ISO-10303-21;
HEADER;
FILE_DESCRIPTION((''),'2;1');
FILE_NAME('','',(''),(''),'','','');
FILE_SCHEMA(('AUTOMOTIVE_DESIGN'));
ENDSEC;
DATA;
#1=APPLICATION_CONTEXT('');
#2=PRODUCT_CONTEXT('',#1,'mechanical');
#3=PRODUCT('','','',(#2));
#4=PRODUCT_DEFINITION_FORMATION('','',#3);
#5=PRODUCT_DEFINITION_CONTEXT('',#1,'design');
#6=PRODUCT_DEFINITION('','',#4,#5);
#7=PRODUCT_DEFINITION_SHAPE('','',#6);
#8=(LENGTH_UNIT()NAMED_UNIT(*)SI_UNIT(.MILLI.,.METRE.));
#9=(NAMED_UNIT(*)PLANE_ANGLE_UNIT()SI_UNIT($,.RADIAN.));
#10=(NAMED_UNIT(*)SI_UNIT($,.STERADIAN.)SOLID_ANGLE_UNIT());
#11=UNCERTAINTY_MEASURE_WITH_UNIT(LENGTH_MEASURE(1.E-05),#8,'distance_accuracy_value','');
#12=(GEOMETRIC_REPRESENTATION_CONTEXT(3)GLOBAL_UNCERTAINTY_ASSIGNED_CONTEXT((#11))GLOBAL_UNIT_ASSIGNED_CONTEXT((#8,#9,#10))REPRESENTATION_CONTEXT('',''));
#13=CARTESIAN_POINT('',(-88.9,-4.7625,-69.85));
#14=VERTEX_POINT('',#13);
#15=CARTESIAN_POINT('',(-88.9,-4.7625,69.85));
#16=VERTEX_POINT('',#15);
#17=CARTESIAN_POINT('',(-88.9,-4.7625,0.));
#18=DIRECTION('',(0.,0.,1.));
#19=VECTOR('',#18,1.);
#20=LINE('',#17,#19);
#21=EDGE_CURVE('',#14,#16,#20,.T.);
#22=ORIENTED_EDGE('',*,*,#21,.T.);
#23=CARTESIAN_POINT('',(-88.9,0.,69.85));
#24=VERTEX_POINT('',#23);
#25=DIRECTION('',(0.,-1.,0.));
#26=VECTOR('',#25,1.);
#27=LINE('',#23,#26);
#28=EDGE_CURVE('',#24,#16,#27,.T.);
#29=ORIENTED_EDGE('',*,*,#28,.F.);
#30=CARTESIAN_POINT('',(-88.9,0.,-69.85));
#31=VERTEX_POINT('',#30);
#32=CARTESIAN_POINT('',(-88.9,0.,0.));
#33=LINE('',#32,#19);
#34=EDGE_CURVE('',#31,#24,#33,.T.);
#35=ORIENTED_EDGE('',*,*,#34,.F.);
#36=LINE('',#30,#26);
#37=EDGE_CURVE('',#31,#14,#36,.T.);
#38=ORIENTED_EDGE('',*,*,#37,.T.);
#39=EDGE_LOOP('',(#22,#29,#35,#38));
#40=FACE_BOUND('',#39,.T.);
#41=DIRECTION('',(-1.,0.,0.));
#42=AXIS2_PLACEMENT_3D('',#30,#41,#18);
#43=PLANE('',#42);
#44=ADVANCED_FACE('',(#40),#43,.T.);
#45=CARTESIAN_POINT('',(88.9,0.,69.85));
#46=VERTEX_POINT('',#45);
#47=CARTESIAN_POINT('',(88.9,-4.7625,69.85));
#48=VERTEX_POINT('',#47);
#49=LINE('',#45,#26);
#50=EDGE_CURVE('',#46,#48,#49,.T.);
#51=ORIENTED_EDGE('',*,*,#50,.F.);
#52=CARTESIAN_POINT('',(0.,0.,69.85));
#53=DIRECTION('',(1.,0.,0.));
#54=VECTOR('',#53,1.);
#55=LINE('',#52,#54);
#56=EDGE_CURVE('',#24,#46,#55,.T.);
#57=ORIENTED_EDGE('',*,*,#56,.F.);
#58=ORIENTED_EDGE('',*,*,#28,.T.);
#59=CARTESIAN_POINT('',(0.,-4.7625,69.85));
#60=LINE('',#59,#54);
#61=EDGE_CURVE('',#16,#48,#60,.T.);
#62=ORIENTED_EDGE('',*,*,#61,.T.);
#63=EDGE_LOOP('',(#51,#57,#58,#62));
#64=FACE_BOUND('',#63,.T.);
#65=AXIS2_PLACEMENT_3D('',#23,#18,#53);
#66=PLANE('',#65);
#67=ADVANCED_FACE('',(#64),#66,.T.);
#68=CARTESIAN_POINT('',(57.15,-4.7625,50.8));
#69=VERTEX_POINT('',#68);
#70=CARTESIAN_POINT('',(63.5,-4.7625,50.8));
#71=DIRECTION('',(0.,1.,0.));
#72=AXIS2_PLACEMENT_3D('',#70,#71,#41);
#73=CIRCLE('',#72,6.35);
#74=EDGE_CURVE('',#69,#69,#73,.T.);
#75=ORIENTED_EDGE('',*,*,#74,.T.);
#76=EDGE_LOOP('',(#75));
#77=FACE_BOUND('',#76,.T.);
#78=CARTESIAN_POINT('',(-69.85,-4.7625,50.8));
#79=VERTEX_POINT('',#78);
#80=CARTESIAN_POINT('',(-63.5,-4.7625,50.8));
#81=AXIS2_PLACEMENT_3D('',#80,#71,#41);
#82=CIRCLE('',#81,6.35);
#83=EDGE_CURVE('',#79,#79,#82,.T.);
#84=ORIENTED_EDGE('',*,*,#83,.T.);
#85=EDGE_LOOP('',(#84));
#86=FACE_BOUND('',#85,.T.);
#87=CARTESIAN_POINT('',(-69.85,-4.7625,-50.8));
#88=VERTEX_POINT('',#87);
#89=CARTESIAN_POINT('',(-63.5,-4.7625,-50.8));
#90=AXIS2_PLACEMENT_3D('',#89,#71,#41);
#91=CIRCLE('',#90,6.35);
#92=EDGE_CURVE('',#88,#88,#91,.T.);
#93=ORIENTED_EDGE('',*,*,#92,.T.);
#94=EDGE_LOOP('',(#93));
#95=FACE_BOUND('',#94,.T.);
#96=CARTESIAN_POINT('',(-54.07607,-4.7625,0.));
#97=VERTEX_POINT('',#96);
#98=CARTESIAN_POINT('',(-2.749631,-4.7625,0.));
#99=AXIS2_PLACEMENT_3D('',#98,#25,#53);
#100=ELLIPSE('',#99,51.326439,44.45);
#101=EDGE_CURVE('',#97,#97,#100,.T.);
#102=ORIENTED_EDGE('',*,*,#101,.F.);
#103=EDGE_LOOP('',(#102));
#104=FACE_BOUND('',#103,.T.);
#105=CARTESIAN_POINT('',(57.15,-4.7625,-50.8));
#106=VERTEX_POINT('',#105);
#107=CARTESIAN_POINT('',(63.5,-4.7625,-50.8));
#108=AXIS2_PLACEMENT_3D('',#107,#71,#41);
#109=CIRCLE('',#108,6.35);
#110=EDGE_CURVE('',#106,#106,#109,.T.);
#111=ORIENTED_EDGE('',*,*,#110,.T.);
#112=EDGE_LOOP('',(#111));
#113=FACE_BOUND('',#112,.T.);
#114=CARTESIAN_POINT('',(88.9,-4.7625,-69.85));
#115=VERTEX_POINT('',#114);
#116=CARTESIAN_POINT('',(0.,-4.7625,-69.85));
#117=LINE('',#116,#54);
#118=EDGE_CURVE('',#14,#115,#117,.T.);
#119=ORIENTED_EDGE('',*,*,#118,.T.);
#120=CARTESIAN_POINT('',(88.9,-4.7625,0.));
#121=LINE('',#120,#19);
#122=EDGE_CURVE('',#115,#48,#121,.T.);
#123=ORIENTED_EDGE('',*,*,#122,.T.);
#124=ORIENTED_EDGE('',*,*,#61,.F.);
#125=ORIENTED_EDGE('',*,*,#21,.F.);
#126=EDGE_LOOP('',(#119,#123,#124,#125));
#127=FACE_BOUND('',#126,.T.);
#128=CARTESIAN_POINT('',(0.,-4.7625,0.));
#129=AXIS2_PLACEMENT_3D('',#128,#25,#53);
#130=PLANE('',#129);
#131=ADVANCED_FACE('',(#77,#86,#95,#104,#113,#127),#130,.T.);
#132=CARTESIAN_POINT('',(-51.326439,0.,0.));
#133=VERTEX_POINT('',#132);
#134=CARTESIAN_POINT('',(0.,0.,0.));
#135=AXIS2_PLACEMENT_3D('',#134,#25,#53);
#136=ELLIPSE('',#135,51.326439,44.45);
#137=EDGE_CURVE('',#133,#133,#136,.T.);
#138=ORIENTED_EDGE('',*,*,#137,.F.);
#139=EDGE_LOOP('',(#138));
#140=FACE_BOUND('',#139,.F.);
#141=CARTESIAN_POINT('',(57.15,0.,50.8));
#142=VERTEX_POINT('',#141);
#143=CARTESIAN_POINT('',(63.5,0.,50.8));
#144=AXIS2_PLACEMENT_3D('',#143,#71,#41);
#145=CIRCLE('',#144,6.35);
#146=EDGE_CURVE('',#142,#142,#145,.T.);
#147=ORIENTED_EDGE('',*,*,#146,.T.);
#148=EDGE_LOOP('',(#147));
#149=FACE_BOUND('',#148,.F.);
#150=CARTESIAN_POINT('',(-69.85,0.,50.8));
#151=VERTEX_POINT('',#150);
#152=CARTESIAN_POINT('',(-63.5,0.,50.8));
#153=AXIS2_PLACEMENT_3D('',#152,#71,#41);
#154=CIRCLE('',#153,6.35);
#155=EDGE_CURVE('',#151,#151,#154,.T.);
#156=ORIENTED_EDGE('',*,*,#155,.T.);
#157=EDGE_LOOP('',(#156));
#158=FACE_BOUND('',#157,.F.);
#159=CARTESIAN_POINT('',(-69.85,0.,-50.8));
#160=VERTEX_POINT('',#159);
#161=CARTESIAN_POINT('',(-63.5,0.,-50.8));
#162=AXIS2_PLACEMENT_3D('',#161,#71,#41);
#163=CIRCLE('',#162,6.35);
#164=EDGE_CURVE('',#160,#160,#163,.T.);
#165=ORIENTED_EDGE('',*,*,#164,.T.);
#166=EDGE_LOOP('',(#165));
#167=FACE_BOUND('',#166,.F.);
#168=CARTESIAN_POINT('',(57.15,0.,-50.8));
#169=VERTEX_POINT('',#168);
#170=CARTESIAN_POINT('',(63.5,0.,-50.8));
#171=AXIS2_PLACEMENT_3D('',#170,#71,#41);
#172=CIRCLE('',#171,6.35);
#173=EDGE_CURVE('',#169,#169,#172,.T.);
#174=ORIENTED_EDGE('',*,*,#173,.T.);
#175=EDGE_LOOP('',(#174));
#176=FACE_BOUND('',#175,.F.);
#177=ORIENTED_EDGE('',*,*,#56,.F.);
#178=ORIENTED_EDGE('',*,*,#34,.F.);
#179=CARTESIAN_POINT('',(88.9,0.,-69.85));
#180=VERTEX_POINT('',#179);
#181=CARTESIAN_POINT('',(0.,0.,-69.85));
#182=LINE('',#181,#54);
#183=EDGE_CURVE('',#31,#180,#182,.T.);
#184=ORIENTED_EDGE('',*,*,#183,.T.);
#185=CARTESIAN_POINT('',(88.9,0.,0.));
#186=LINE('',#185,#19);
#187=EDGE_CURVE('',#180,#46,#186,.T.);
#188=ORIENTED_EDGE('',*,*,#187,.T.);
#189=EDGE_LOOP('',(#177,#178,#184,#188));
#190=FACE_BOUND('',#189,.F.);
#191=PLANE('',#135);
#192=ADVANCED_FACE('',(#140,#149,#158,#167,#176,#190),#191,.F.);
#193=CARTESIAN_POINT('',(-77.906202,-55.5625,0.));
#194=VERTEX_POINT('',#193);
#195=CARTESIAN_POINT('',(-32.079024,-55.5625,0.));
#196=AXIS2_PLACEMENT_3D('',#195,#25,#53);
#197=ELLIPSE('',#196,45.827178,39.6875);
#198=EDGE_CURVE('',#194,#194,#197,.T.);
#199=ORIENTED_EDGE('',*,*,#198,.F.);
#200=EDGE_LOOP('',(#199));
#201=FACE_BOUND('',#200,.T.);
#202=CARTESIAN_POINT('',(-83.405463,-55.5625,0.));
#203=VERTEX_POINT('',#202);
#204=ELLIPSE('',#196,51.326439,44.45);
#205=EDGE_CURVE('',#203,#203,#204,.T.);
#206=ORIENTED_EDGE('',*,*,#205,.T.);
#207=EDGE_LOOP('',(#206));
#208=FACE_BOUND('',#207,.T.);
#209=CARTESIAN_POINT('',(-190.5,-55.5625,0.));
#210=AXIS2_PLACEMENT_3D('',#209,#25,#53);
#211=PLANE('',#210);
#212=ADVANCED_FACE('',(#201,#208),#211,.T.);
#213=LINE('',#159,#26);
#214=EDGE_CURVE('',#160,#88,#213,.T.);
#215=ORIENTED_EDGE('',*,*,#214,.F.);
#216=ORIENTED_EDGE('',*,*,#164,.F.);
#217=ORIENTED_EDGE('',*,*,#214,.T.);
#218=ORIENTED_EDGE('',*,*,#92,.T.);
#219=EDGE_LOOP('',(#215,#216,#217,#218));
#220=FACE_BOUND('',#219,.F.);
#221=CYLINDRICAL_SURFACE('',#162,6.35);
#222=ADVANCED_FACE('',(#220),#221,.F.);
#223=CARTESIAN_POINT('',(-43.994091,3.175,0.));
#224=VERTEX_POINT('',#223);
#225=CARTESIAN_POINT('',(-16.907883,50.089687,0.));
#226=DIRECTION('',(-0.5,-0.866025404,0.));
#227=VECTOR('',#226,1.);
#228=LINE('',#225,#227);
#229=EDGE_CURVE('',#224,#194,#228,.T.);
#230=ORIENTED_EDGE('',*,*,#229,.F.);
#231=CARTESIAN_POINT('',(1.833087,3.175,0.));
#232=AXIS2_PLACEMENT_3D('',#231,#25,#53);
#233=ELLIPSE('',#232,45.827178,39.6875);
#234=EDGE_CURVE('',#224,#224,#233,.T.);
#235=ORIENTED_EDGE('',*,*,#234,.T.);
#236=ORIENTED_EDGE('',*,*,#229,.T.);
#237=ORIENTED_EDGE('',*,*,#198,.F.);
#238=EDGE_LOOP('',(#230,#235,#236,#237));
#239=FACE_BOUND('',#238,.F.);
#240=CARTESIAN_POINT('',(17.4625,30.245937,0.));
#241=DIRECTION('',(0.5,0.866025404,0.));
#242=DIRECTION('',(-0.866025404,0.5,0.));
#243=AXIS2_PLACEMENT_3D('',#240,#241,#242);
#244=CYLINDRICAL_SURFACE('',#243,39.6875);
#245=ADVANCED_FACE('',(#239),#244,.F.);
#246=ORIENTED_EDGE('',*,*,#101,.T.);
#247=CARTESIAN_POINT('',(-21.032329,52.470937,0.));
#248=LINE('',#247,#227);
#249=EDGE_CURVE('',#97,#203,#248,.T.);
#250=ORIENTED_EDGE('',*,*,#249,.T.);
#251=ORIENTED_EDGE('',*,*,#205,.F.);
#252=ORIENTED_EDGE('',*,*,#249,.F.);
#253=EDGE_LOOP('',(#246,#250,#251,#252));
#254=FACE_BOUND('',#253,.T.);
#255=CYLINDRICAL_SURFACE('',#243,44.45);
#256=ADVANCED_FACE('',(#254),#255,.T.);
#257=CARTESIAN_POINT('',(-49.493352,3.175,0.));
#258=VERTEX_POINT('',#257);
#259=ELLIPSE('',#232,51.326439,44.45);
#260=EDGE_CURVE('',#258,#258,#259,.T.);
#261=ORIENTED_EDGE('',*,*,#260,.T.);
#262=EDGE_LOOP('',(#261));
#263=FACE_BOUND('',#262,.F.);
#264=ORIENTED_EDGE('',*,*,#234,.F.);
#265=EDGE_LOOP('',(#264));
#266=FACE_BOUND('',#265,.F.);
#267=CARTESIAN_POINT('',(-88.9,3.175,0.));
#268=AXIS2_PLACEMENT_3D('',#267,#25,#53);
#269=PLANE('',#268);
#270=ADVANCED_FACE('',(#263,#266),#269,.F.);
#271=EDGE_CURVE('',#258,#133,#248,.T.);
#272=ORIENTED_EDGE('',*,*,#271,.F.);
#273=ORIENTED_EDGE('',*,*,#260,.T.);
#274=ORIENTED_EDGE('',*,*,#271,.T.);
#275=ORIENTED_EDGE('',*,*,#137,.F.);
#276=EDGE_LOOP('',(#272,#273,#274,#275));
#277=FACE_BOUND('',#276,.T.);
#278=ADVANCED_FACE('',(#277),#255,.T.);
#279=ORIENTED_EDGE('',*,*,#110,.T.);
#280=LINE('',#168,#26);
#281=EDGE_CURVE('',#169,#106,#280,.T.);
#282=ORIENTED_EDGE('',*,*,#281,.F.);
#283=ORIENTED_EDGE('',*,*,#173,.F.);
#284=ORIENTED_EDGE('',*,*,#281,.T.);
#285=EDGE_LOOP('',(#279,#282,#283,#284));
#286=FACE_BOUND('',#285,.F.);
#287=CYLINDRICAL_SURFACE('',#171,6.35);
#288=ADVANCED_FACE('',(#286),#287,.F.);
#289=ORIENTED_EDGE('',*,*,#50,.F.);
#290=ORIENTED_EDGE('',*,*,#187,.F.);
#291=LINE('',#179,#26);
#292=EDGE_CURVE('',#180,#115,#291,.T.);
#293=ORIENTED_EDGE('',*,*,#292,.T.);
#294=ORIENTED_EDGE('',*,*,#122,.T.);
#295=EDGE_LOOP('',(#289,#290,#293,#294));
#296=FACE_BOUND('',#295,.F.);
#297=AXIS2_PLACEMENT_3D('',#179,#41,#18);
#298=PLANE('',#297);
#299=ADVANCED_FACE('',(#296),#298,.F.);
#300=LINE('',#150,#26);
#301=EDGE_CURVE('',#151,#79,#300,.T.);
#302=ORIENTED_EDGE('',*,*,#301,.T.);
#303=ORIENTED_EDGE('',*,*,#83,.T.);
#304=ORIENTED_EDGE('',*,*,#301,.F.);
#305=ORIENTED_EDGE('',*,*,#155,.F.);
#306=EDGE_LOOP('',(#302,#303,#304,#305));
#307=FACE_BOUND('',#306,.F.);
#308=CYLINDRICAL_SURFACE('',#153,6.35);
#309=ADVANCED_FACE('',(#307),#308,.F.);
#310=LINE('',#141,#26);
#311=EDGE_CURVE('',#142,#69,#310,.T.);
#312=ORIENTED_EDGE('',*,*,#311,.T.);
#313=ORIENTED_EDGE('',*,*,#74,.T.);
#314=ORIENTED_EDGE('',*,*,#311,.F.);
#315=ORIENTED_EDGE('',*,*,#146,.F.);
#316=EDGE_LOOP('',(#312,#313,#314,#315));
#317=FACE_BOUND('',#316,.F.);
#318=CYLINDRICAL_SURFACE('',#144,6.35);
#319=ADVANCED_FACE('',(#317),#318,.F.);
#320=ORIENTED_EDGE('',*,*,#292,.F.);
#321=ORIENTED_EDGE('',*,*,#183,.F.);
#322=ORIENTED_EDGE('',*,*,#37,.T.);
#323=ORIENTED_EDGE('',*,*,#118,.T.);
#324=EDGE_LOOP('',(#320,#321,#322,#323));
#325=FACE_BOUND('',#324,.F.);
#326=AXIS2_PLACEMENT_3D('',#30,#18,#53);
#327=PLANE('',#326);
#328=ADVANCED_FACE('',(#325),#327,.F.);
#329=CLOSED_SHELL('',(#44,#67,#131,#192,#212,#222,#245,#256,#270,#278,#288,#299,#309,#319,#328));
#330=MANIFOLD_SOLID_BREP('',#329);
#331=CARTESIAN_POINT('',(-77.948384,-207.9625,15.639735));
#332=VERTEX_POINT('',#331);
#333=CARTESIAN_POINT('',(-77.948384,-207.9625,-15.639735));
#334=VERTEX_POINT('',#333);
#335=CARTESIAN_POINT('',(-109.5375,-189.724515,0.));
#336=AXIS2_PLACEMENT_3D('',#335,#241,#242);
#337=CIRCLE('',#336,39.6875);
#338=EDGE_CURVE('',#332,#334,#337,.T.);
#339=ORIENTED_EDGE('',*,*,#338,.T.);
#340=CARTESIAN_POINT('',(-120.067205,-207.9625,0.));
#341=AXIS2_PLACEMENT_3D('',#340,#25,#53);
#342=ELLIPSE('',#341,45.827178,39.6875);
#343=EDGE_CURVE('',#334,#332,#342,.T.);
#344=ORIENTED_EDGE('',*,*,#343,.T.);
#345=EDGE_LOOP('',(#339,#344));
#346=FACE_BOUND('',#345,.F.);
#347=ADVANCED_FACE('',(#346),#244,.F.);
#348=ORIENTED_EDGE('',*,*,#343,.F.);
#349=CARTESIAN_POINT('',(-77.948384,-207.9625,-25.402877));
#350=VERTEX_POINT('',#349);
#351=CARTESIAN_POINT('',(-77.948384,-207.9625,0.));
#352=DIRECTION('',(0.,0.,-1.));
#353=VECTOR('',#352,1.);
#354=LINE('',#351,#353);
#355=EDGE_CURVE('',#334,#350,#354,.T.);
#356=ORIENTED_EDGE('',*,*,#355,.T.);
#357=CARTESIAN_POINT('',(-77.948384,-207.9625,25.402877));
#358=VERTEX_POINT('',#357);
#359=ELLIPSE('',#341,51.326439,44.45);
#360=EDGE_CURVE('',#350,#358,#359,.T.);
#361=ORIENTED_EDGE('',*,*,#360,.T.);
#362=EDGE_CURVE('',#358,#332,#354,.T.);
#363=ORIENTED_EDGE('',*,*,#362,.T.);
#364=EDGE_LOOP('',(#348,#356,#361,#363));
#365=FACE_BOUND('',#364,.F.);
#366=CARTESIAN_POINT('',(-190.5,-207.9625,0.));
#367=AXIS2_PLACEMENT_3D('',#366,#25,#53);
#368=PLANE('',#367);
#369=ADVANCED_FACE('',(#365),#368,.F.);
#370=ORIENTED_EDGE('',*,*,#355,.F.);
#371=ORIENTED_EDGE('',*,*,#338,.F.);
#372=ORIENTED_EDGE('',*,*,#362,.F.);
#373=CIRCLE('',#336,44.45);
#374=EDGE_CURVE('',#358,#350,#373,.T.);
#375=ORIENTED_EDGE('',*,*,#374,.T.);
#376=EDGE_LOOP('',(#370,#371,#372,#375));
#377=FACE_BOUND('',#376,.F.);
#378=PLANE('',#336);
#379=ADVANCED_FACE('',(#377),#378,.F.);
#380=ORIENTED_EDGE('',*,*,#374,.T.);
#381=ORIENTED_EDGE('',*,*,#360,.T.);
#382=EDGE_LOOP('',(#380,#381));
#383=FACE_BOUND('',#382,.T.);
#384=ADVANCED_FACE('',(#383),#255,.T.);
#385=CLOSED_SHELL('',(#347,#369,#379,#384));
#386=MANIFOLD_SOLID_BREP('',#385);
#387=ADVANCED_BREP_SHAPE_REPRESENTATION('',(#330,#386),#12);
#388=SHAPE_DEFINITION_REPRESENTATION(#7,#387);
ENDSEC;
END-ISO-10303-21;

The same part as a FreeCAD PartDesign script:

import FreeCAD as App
import Part
import Sketcher

V = App.Vector
Q = App.Units.Quantity


def add_polygon(sketch, points):
    """Adds a closed chain of lines whose ends are joined by coincident constraints."""
    first, n = sketch.GeometryCount, len(points)
    for a, b in zip(points, points[1:] + points[:1]):
        sketch.addGeometry(Part.LineSegment(App.Vector(*a, 0), App.Vector(*b, 0)), False)
    for i in range(n):
        sketch.addConstraint(Sketcher.Constraint("Coincident", first + i, 2, first + (i + 1) % n, 1))

doc = App.newDocument("Part")
body = doc.addObject("PartDesign::Body", "Body")
body.AllowCompound = True

sketch1 = doc.addObject("Sketcher::SketchObject", "Sketch")
body.addObject(sketch1)
sketch1.AttachmentSupport = (doc.XZ_Plane, [""])
sketch1.MapMode = "FlatFace"
add_polygon(sketch1, [(-89, 70), (-89, -70), (89, -70), (89, 70)])
sketch1.addConstraint(Sketcher.Constraint("Vertical", 0))
sketch1.addConstraint(Sketcher.Constraint("Horizontal", 1))
sketch1.addConstraint(Sketcher.Constraint("Vertical", 2))
sketch1.addConstraint(Sketcher.Constraint("Horizontal", 3))
sketch1.addConstraint(Sketcher.Constraint("Symmetric", 0, 2, 2, 2, -1, 1))
sketch1.addConstraint(Sketcher.Constraint("DistanceX", 1, 1, 1, 2, Q("7 in")))
sketch1.addConstraint(Sketcher.Constraint("DistanceY", 0, 2, 0, 1, Q("5.5 in")))
pad1 = doc.addObject("PartDesign::Pad", "Pad")
body.addObject(pad1)
pad1.Profile = sketch1
pad1.Length = Q("0.1875 in")

sketch2 = doc.addObject("Sketcher::SketchObject", "Sketch001")
body.addObject(sketch2)
sketch2.Placement = App.Placement(V(17.4625, 30.245937, 0), App.Rotation(V(-0.866025404, 0.5, 0), V(0, 0, 1), V(0.5, 0.866025404, 0), "ZXY"))
sketch2.addGeometry(Part.Circle(V(0, 0, 0), V(0, 0, 1), 44), False)
sketch2.addConstraint(Sketcher.Constraint("Coincident", 0, 3, -1, 1))
sketch2.addConstraint(Sketcher.Constraint("Diameter", 0, Q("3.5 in")))
pad2 = doc.addObject("PartDesign::Pad", "Pad001")
body.addObject(pad2)
pad2.Profile = sketch2
pad2.Length = Q("10 in")
pad2.Reversed = True

sketch3 = doc.addObject("Sketcher::SketchObject", "Sketch002")
body.addObject(sketch3)
sketch3.Placement = App.Placement(V(17.4625, 30.245937, 0), App.Rotation(V(-0.866025404, 0.5, 0), V(0, 0, 1), V(0.5, 0.866025404, 0), "ZXY"))
sketch3.addGeometry(Part.Circle(V(0, 0, 0), V(0, 0, 1), 40), False)
sketch3.addConstraint(Sketcher.Constraint("Coincident", 0, 3, -1, 1))
sketch3.addConstraint(Sketcher.Constraint("Diameter", 0, Q("3.125 in")))
pocket1 = doc.addObject("PartDesign::Pocket", "Pocket")
body.addObject(pocket1)
pocket1.Profile = sketch3
pocket1.Type = "ThroughAll"

sketch4 = doc.addObject("Sketcher::SketchObject", "Sketch003")
body.addObject(sketch4)
sketch4.AttachmentSupport = (doc.XY_Plane, [""])
sketch4.MapMode = "FlatFace"
add_polygon(sketch4, [(-89, 79), (-89, 3), (89, 3), (89, 79)])
sketch4.addConstraint(Sketcher.Constraint("Vertical", 0))
sketch4.addConstraint(Sketcher.Constraint("Horizontal", 1))
sketch4.addConstraint(Sketcher.Constraint("Vertical", 2))
sketch4.addConstraint(Sketcher.Constraint("Horizontal", 3))
sketch4.addConstraint(Sketcher.Constraint("DistanceX", 1, 1, 1, 2, Q("7 in")))
sketch4.addConstraint(Sketcher.Constraint("DistanceY", 0, 2, 0, 1, Q("3 in")))
sketch4.addConstraint(Sketcher.Constraint("DistanceX", 0, 2, -1, 1, Q("3.5 in")))
sketch4.addConstraint(Sketcher.Constraint("DistanceY", -1, 1, 0, 2, Q("0.125 in")))
pocket2 = doc.addObject("PartDesign::Pocket", "Pocket001")
body.addObject(pocket2)
pocket2.Profile = sketch4
pocket2.Length = Q("4 in")
pocket2.Midplane = True

sketch5 = doc.addObject("Sketcher::SketchObject", "Sketch004")
body.addObject(sketch5)
sketch5.AttachmentSupport = (doc.XZ_Plane, [""])
sketch5.MapMode = "FlatFace"
sketch5.addGeometry(Part.Circle(V(-64, 51, 0), V(0, 0, 1), 6), False)
sketch5.addGeometry(Part.Circle(V(64, 51, 0), V(0, 0, 1), 6), False)
sketch5.addGeometry(Part.Circle(V(-64, -51, 0), V(0, 0, 1), 6), False)
sketch5.addGeometry(Part.Circle(V(64, -51, 0), V(0, 0, 1), 6), False)
sketch5.addConstraint(Sketcher.Constraint("Equal", 0, 1))
sketch5.addConstraint(Sketcher.Constraint("Equal", 1, 2))
sketch5.addConstraint(Sketcher.Constraint("Equal", 2, 3))
sketch5.addConstraint(Sketcher.Constraint("Symmetric", 1, 3, 2, 3, -1, 1))
sketch5.addConstraint(Sketcher.Constraint("Symmetric", 0, 3, 3, 3, -1, 1))
sketch5.addConstraint(Sketcher.Constraint("Symmetric", 0, 3, 1, 3, -2))
sketch5.addConstraint(Sketcher.Constraint("Diameter", 0, Q("0.5 in")))
sketch5.addConstraint(Sketcher.Constraint("DistanceY", -1, 1, 0, 3, Q("2 in")))
sketch5.addConstraint(Sketcher.Constraint("DistanceX", 0, 3, 1, 3, Q("5 in")))
pocket3 = doc.addObject("PartDesign::Pocket", "Pocket002")
body.addObject(pocket3)
pocket3.Profile = sketch5
pocket3.Type = "ThroughAll"
pocket3.Reversed = True

sketch6 = doc.addObject("Sketcher::SketchObject", "Sketch005")
body.addObject(sketch6)
sketch6.AttachmentSupport = (doc.XY_Plane, [""])
sketch6.MapMode = "FlatFace"
add_polygon(sketch6, [(-190, -56), (-190, -208), (89, -208), (89, -56)])
sketch6.addConstraint(Sketcher.Constraint("Vertical", 0))
sketch6.addConstraint(Sketcher.Constraint("Horizontal", 1))
sketch6.addConstraint(Sketcher.Constraint("Vertical", 2))
sketch6.addConstraint(Sketcher.Constraint("Horizontal", 3))
sketch6.addConstraint(Sketcher.Constraint("DistanceX", 1, 1, 1, 2, Q("11 in")))
sketch6.addConstraint(Sketcher.Constraint("DistanceY", 0, 2, 0, 1, Q("6 in")))
sketch6.addConstraint(Sketcher.Constraint("DistanceX", 0, 2, -1, 1, Q("7.5 in")))
sketch6.addConstraint(Sketcher.Constraint("DistanceY", 0, 2, -1, 1, Q("8.1875 in")))
pocket4 = doc.addObject("PartDesign::Pocket", "Pocket003")
body.addObject(pocket4)
pocket4.Profile = sketch6
pocket4.Length = Q("3.51 in")
pocket4.Midplane = True

doc.recompute()
